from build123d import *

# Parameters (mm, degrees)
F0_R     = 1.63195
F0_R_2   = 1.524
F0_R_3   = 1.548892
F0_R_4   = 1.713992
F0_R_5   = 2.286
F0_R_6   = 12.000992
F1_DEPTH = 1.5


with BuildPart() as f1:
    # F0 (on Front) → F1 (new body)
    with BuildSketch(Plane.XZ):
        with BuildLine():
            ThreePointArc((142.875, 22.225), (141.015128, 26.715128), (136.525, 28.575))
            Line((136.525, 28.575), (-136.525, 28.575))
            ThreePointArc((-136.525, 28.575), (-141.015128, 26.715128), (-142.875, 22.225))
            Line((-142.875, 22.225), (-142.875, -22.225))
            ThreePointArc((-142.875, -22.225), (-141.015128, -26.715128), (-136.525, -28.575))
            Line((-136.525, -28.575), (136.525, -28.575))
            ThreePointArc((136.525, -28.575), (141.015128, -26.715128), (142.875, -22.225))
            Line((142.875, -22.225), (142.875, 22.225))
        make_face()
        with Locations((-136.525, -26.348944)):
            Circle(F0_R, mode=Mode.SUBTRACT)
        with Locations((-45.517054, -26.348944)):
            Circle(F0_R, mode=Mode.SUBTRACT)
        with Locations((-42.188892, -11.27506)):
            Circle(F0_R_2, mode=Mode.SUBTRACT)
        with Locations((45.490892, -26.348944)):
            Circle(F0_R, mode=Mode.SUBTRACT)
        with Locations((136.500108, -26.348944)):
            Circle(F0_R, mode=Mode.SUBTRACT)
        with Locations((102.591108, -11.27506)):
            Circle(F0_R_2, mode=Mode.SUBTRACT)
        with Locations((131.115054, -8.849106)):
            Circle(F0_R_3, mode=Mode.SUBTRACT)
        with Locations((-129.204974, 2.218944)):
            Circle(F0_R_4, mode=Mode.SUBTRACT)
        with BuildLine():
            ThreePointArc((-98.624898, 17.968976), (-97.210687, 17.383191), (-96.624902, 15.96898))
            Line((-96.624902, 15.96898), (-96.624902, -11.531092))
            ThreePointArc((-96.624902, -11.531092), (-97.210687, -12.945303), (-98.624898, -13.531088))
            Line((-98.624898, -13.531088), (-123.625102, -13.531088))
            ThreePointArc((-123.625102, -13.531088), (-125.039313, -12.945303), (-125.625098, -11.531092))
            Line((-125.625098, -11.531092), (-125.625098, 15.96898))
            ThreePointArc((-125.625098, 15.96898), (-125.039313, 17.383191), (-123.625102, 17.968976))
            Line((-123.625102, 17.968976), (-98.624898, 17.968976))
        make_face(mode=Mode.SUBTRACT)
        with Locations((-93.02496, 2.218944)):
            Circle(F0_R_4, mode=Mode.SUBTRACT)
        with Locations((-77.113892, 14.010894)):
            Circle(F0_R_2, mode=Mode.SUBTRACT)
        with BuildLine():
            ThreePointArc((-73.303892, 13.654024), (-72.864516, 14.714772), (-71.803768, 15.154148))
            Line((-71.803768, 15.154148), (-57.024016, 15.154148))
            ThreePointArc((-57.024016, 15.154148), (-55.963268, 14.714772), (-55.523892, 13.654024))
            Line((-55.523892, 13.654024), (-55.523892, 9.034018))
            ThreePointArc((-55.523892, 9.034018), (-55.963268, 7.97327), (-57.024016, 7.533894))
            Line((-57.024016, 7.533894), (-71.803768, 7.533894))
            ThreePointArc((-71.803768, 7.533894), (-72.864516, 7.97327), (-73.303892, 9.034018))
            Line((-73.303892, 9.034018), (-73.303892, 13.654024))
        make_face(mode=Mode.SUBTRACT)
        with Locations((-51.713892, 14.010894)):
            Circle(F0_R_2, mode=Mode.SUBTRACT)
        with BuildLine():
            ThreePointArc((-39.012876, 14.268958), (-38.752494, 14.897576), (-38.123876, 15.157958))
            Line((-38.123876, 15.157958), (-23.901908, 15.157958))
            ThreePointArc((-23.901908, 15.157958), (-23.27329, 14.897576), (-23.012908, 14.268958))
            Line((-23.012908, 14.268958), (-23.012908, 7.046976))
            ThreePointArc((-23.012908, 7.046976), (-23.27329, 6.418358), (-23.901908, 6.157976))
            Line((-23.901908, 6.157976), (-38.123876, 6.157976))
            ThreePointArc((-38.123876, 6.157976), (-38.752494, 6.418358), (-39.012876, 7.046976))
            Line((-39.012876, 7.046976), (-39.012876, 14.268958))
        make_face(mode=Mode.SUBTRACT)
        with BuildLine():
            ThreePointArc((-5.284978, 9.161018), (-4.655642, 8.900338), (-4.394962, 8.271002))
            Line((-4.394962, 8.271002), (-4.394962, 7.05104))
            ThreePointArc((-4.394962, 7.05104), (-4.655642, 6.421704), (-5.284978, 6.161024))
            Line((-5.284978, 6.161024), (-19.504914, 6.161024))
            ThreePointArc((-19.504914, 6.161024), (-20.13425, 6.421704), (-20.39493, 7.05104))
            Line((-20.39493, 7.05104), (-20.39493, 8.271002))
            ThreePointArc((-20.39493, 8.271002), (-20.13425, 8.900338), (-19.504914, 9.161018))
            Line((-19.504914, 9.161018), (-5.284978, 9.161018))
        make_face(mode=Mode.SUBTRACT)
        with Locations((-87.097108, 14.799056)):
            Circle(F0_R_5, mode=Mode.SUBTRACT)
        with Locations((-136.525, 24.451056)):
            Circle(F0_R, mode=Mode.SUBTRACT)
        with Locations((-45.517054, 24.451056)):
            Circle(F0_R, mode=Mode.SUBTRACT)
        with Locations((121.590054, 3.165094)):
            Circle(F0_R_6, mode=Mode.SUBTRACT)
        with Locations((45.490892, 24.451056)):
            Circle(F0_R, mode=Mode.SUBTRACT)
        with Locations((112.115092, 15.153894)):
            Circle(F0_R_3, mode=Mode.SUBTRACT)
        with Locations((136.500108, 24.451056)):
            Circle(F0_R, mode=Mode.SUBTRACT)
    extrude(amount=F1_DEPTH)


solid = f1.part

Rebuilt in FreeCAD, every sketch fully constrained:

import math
import FreeCAD as App
import Part
import Sketcher
Q = App.Units.Quantity

doc = App.newDocument("Part")
body = doc.addObject("PartDesign::Body", "Body")

# Sketch on XZ plane
sketch1 = body.newObject("Sketcher::SketchObject", "Sketch")
sketch1.AttachmentSupport = (doc.getObject("XZ_Plane"), [""])
sketch1.MapMode = "FlatFace"
sketch1.addGeometry([
    Part.ArcOfCircle(Part.Circle(App.Vector(136.5, 22.2, 0), App.Vector(0, 0, 1), 6.4), math.radians(0), math.radians(90)),  # 0
    Part.LineSegment(App.Vector(136.5, 28.6, 0), App.Vector(-136.5, 28.6, 0)),  # 1
    Part.ArcOfCircle(Part.Circle(App.Vector(-136.5, 22.2, 0), App.Vector(0, 0, 1), 6.4), math.radians(90), math.radians(180)),  # 2
    Part.LineSegment(App.Vector(-142.9, 22.2, 0), App.Vector(-142.9, -22.2, 0)),  # 3
    Part.ArcOfCircle(Part.Circle(App.Vector(-136.5, -22.2, 0), App.Vector(0, 0, 1), 6.4), math.radians(-180), math.radians(-90)),  # 4
    Part.LineSegment(App.Vector(-136.5, -28.6, 0), App.Vector(136.5, -28.6, 0)),  # 5
    Part.ArcOfCircle(Part.Circle(App.Vector(136.5, -22.2, 0), App.Vector(0, 0, 1), 6.4), math.radians(-90), math.radians(0)),  # 6
    Part.LineSegment(App.Vector(142.9, -22.2, 0), App.Vector(142.9, 22.2, 0)),  # 7
    Part.Circle(App.Vector(-136.5, -26.3, 0), App.Vector(0, 0, 1), 1.6),  # 8
    Part.Circle(App.Vector(-45.5, -26.3, 0), App.Vector(0, 0, 1), 1.6),  # 9
    Part.Circle(App.Vector(-42.2, -11.3, 0), App.Vector(0, 0, 1), 1.5),  # 10
    Part.Circle(App.Vector(45.5, -26.3, 0), App.Vector(0, 0, 1), 1.6),  # 11
    Part.Circle(App.Vector(136.5, -26.3, 0), App.Vector(0, 0, 1), 1.6),  # 12
    Part.Circle(App.Vector(102.6, -11.3, 0), App.Vector(0, 0, 1), 1.5),  # 13
    Part.Circle(App.Vector(131.1, -8.8, 0), App.Vector(0, 0, 1), 1.5),  # 14
    Part.Circle(App.Vector(-129.2, 2.2, 0), App.Vector(0, 0, 1), 1.7),  # 15
    Part.LineSegment(App.Vector(-123.6, 18, 0), App.Vector(-98.6, 18, 0)),  # 16
    Part.ArcOfCircle(Part.Circle(App.Vector(-98.6, 16, 0), App.Vector(0, 0, 1), 2), math.radians(0), math.radians(90)),  # 17
    Part.LineSegment(App.Vector(-96.6, 16, 0), App.Vector(-96.6, -11.5, 0)),  # 18
    Part.ArcOfCircle(Part.Circle(App.Vector(-98.6, -11.5, 0), App.Vector(0, 0, 1), 2), math.radians(-90), math.radians(0)),  # 19
    Part.LineSegment(App.Vector(-98.6, -13.5, 0), App.Vector(-123.6, -13.5, 0)),  # 20
    Part.ArcOfCircle(Part.Circle(App.Vector(-123.6, -11.5, 0), App.Vector(0, 0, 1), 2), math.radians(180), math.radians(270)),  # 21
    Part.LineSegment(App.Vector(-125.6, -11.5, 0), App.Vector(-125.6, 16, 0)),  # 22
    Part.ArcOfCircle(Part.Circle(App.Vector(-123.6, 16, 0), App.Vector(0, 0, 1), 2), math.radians(90), math.radians(180)),  # 23
    Part.Circle(App.Vector(-93, 2.2, 0), App.Vector(0, 0, 1), 1.7),  # 24
    Part.LineSegment(App.Vector(-73.3, 9, 0), App.Vector(-73.3, 13.7, 0)),  # 25
    Part.ArcOfCircle(Part.Circle(App.Vector(-71.8, 13.7, 0), App.Vector(0, 0, 1), 1.5), math.radians(90), math.radians(180)),  # 26
    Part.LineSegment(App.Vector(-71.8, 15.2, 0), App.Vector(-57, 15.2, 0)),  # 27
    Part.ArcOfCircle(Part.Circle(App.Vector(-57, 13.7, 0), App.Vector(0, 0, 1), 1.5), math.radians(0), math.radians(90)),  # 28
    Part.LineSegment(App.Vector(-55.5, 13.7, 0), App.Vector(-55.5, 9, 0)),  # 29
    Part.ArcOfCircle(Part.Circle(App.Vector(-57, 9, 0), App.Vector(0, 0, 1), 1.5), math.radians(-90), math.radians(0)),  # 30
    Part.LineSegment(App.Vector(-57, 7.5, 0), App.Vector(-71.8, 7.5, 0)),  # 31
    Part.ArcOfCircle(Part.Circle(App.Vector(-71.8, 9, 0), App.Vector(0, 0, 1), 1.5), math.radians(180), math.radians(270)),  # 32
    Part.LineSegment(App.Vector(-19.5, 9.2, 0), App.Vector(-5.3, 9.2, 0)),  # 33
    Part.ArcOfCircle(Part.Circle(App.Vector(-5.3, 8.3, 0), App.Vector(0, 0, 1), 0.9), math.radians(0), math.radians(90)),  # 34
    Part.LineSegment(App.Vector(-4.4, 8.3, 0), App.Vector(-4.4, 7.1, 0)),  # 35
    Part.ArcOfCircle(Part.Circle(App.Vector(-5.3, 7.1, 0), App.Vector(0, 0, 1), 0.9), math.radians(-90), math.radians(0)),  # 36
    Part.LineSegment(App.Vector(-5.3, 6.2, 0), App.Vector(-19.5, 6.2, 0)),  # 37
    Part.ArcOfCircle(Part.Circle(App.Vector(-19.5, 7.1, 0), App.Vector(0, 0, 1), 0.9), math.radians(-180), math.radians(-90)),  # 38
    Part.LineSegment(App.Vector(-20.4, 7.1, 0), App.Vector(-20.4, 8.3, 0)),  # 39
    Part.ArcOfCircle(Part.Circle(App.Vector(-19.5, 8.3, 0), App.Vector(0, 0, 1), 0.9), math.radians(90), math.radians(180)),  # 40
    Part.LineSegment(App.Vector(-39, 7, 0), App.Vector(-39, 14.3, 0)),  # 41
    Part.ArcOfCircle(Part.Circle(App.Vector(-38.1, 14.3, 0), App.Vector(0, 0, 1), 0.9), math.radians(90), math.radians(180)),  # 42
    Part.LineSegment(App.Vector(-38.1, 15.2, 0), App.Vector(-23.9, 15.2, 0)),  # 43
    Part.ArcOfCircle(Part.Circle(App.Vector(-23.9, 14.3, 0), App.Vector(0, 0, 1), 0.9), math.radians(0), math.radians(90)),  # 44
    Part.LineSegment(App.Vector(-23, 14.3, 0), App.Vector(-23, 7, 0)),  # 45
    Part.ArcOfCircle(Part.Circle(App.Vector(-23.9, 7, 0), App.Vector(0, 0, 1), 0.9), math.radians(-90), math.radians(0)),  # 46
    Part.LineSegment(App.Vector(-23.9, 6.2, 0), App.Vector(-38.1, 6.2, 0)),  # 47
    Part.ArcOfCircle(Part.Circle(App.Vector(-38.1, 7, 0), App.Vector(0, 0, 1), 0.9), math.radians(180), math.radians(270)),  # 48
    Part.Circle(App.Vector(-87.1, 14.8, 0), App.Vector(0, 0, 1), 2.3),  # 49
    Part.Circle(App.Vector(-77.1, 14, 0), App.Vector(0, 0, 1), 1.5),  # 50
    Part.Circle(App.Vector(-136.5, 24.5, 0), App.Vector(0, 0, 1), 1.6),  # 51
    Part.Circle(App.Vector(-51.7, 14, 0), App.Vector(0, 0, 1), 1.5),  # 52
    Part.Circle(App.Vector(-45.5, 24.5, 0), App.Vector(0, 0, 1), 1.6),  # 53
    Part.Circle(App.Vector(121.6, 3.2, 0), App.Vector(0, 0, 1), 12),  # 54
    Part.Circle(App.Vector(45.5, 24.5, 0), App.Vector(0, 0, 1), 1.6),  # 55
    Part.Circle(App.Vector(112.1, 15.2, 0), App.Vector(0, 0, 1), 1.5),  # 56
    Part.Circle(App.Vector(136.5, 24.5, 0), App.Vector(0, 0, 1), 1.6),  # 57
], False)
sketch1.addConstraint([
    Sketcher.Constraint("Tangent", 0, 2, 1, 1),
    Sketcher.Constraint("Tangent", 1, 2, 2, 1),
    Sketcher.Constraint("Tangent", 2, 2, 3, 1),
    Sketcher.Constraint("Tangent", 3, 2, 4, 1),
    Sketcher.Constraint("Tangent", 4, 2, 5, 1),
    Sketcher.Constraint("Tangent", 5, 2, 6, 1),
    Sketcher.Constraint("Tangent", 6, 2, 7, 1),
    Sketcher.Constraint("Tangent", 7, 2, 0, 1),
    Sketcher.Constraint("Tangent", 16, 2, 17, 2),
    Sketcher.Constraint("Tangent", 17, 1, 18, 1),
    Sketcher.Constraint("Tangent", 18, 2, 19, 2),
    Sketcher.Constraint("Tangent", 19, 1, 20, 1),
    Sketcher.Constraint("Tangent", 20, 2, 21, 2),
    Sketcher.Constraint("Tangent", 21, 1, 22, 1),
    Sketcher.Constraint("Tangent", 22, 2, 23, 2),
    Sketcher.Constraint("Tangent", 23, 1, 16, 1),
    Sketcher.Constraint("Tangent", 25, 2, 26, 2),
    Sketcher.Constraint("Tangent", 26, 1, 27, 1),
    Sketcher.Constraint("Tangent", 27, 2, 28, 2),
    Sketcher.Constraint("Tangent", 28, 1, 29, 1),
    Sketcher.Constraint("Tangent", 29, 2, 30, 2),
    Sketcher.Constraint("Tangent", 30, 1, 31, 1),
    Sketcher.Constraint("Tangent", 31, 2, 32, 2),
    Sketcher.Constraint("Tangent", 32, 1, 25, 1),
    Sketcher.Constraint("Tangent", 33, 2, 34, 2),
    Sketcher.Constraint("Tangent", 34, 1, 35, 1),
    Sketcher.Constraint("Tangent", 35, 2, 36, 2),
    Sketcher.Constraint("Tangent", 36, 1, 37, 1),
    Sketcher.Constraint("Tangent", 37, 2, 38, 2),
    Sketcher.Constraint("Tangent", 38, 1, 39, 1),
    Sketcher.Constraint("Tangent", 39, 2, 40, 2),
    Sketcher.Constraint("Tangent", 40, 1, 33, 1),
    Sketcher.Constraint("Tangent", 41, 2, 42, 2),
    Sketcher.Constraint("Tangent", 42, 1, 43, 1),
    Sketcher.Constraint("Tangent", 43, 2, 44, 2),
    Sketcher.Constraint("Tangent", 44, 1, 45, 1),
    Sketcher.Constraint("Tangent", 45, 2, 46, 2),
    Sketcher.Constraint("Tangent", 46, 1, 47, 1),
    Sketcher.Constraint("Tangent", 47, 2, 48, 2),
    Sketcher.Constraint("Tangent", 48, 1, 41, 1),
    Sketcher.Constraint("Horizontal", 1),
    Sketcher.Constraint("Vertical", 3),
    Sketcher.Constraint("Horizontal", 5),
    Sketcher.Constraint("Vertical", 7),
    Sketcher.Constraint("Horizontal", 16),
    Sketcher.Constraint("Vertical", 18),
    Sketcher.Constraint("Horizontal", 20),
    Sketcher.Constraint("Vertical", 22),
    Sketcher.Constraint("Vertical", 25),
    Sketcher.Constraint("Horizontal", 27),
    Sketcher.Constraint("Vertical", 29),
    Sketcher.Constraint("Horizontal", 31),
    Sketcher.Constraint("Horizontal", 33),
    Sketcher.Constraint("Vertical", 35),
    Sketcher.Constraint("Horizontal", 37),
    Sketcher.Constraint("Vertical", 39),
    Sketcher.Constraint("Vertical", 41),
    Sketcher.Constraint("Horizontal", 43),
    Sketcher.Constraint("Vertical", 45),
    Sketcher.Constraint("Horizontal", 47),
    Sketcher.Constraint("Equal", 0, 2),
    Sketcher.Constraint("Equal", 2, 4),
    Sketcher.Constraint("Equal", 4, 6),
    Sketcher.Constraint("Equal", 8, 9),
    Sketcher.Constraint("Equal", 9, 11),
    Sketcher.Constraint("Equal", 11, 12),
    Sketcher.Constraint("Equal", 10, 13),
    Sketcher.Constraint("Equal", 17, 19),
    Sketcher.Constraint("Equal", 19, 21),
    Sketcher.Constraint("Equal", 21, 23),
    Sketcher.Constraint("Equal", 15, 24),
    Sketcher.Constraint("Equal", 26, 28),
    Sketcher.Constraint("Equal", 28, 30),
    Sketcher.Constraint("Equal", 30, 32),
    Sketcher.Constraint("Equal", 34, 36),
    Sketcher.Constraint("Equal", 36, 38),
    Sketcher.Constraint("Equal", 38, 40),
    Sketcher.Constraint("Equal", 42, 44),
    Sketcher.Constraint("Equal", 44, 46),
    Sketcher.Constraint("Equal", 46, 48),
    Sketcher.Constraint("Equal", 13, 50),
    Sketcher.Constraint("Equal", 12, 51),
    Sketcher.Constraint("Equal", 50, 52),
    Sketcher.Constraint("Equal", 51, 53),
    Sketcher.Constraint("Equal", 53, 55),
    Sketcher.Constraint("Equal", 14, 56),
    Sketcher.Constraint("Equal", 55, 57),
    Sketcher.Constraint("Symmetric", 0, 3, 4, 3, -1, 1),
    Sketcher.Constraint("Horizontal", 8, 3, 9, 3),
    Sketcher.Constraint("Horizontal", 9, 3, 11, 3),
    Sketcher.Constraint("Horizontal", 11, 3, 12, 3),
    Sketcher.Constraint("Horizontal", 10, 3, 13, 3),
    Sketcher.Constraint("Horizontal", 15, 3, 24, 3),
    Sketcher.Constraint("Horizontal", 50, 3, 52, 3),
    Sketcher.Constraint("Horizontal", 51, 3, 53, 3),
    Sketcher.Constraint("Horizontal", 53, 3, 55, 3),
    Sketcher.Constraint("Horizontal", 55, 3, 57, 3),
    Sketcher.Constraint("Vertical", 4, 3, 8, 3),
    Sketcher.Constraint("Vertical", 8, 3, 51, 3),
    Sketcher.Constraint("Vertical", 9, 3, 53, 3),
    Sketcher.Constraint("Vertical", 11, 3, 55, 3),
    Sketcher.Constraint("Vertical", 12, 3, 57, 3),
    Sketcher.Constraint("Diameter", 10, Q("0.12 in")),
    Sketcher.Constraint("Diameter", 49, Q("0.18 in")),
    Sketcher.Constraint("Radius", 0, Q("0.25 in")),
    Sketcher.Constraint("Radius", 42, Q("0.035 in")),
    Sketcher.Constraint("Diameter", 8, Q("0.1285 in")),
    Sketcher.Constraint("DistanceX", 1, 2, 1, 1, Q("10.75 in")),
    Sketcher.Constraint("DistanceY", 3, 2, 3, 1, Q("1.75 in")),
    Sketcher.Constraint("Diameter", 14, Q("3.097784 mm")),
    Sketcher.Constraint("Diameter", 15, Q("3.427984 mm")),
    Sketcher.Constraint("Diameter", 54, Q("24.001984 mm")),
    Sketcher.Constraint("DistanceY", 10, 3, -1, 1, Q("0.4439 in")),
    Sketcher.Constraint("DistanceY", -1, 1, 17, 3, Q("0.6287 in")),
    Sketcher.Constraint("DistanceX", 24, 3, -1, 1, Q("3.6624 in")),
    Sketcher.Constraint("DistanceY", -1, 1, 36, 3, Q("0.2776 in")),
    Sketcher.Constraint("Radius", 17, Q("1.999995 mm")),
    Sketcher.Constraint("Radius", 26, Q("1.500123 mm")),
    Sketcher.Constraint("Radius", 34, Q("0.890017 mm")),
    Sketcher.Constraint("DistanceX", 43, 1, 43, 2, Q("14.221968 mm")),
    Sketcher.Constraint("DistanceY", 18, 2, 18, 1, Q("27.500072 mm")),
    Sketcher.Constraint("DistanceY", 35, 2, 35, 1, Q("1.219962 mm")),
    Sketcher.Constraint("DistanceY", 41, 1, 41, 2, Q("7.221982 mm")),
    Sketcher.Constraint("DistanceX", 16, 2, -1, 1, Q("98.624898 mm")),
    Sketcher.Constraint("DistanceX", 20, 2, -1, 1, Q("123.625102 mm")),
    Sketcher.Constraint("DistanceX", 27, 1, 27, 2, Q("14.779752 mm")),
    Sketcher.Constraint("DistanceX", 33, 1, 33, 2, Q("14.219936 mm")),
    Sketcher.Constraint("DistanceY", 25, 1, 25, 2, Q("4.620006 mm")),
    Sketcher.Constraint("DistanceX", -1, 1, 12, 3, Q("136.500108 mm")),
    Sketcher.Constraint("DistanceX", -1, 1, 13, 3, Q("102.591108 mm")),
    Sketcher.Constraint("DistanceX", 26, 3, -1, 1, Q("71.803769 mm")),
    Sketcher.Constraint("DistanceX", 34, 3, -1, 1, Q("5.284979 mm")),
    Sketcher.Constraint("DistanceY", -1, 1, 42, 3, Q("14.268958 mm")),
    Sketcher.Constraint("DistanceX", 49, 3, -1, 1, Q("87.097108 mm")),
    Sketcher.Constraint("DistanceX", 44, 1, -1, 1, Q("23.012908 mm")),
    Sketcher.Constraint("DistanceY", 8, 3, -1, 1, Q("26.348944 mm")),
    Sketcher.Constraint("DistanceX", 9, 3, -1, 1, Q("45.517054 mm")),
    Sketcher.Constraint("DistanceX", 10, 3, -1, 1, Q("42.188892 mm")),
    Sketcher.Constraint("DistanceX", -1, 1, 11, 3, Q("45.490892 mm")),
    Sketcher.Constraint("DistanceX", -1, 1, 14, 3, Q("131.115054 mm")),
    Sketcher.Constraint("DistanceY", 14, 3, -1, 1, Q("8.849106 mm")),
    Sketcher.Constraint("DistanceX", 15, 3, -1, 1, Q("129.204974 mm")),
    Sketcher.Constraint("DistanceY", -1, 1, 15, 3, Q("2.218944 mm")),
    Sketcher.Constraint("DistanceY", -1, 1, 26, 3, Q("13.654025 mm")),
    Sketcher.Constraint("DistanceY", -1, 1, 49, 3, Q("14.799056 mm")),
    Sketcher.Constraint("DistanceX", 50, 3, -1, 1, Q("77.113892 mm")),
    Sketcher.Constraint("DistanceY", -1, 1, 50, 3, Q("14.010894 mm")),
    Sketcher.Constraint("DistanceY", -1, 1, 51, 3, Q("24.451056 mm")),
    Sketcher.Constraint("DistanceX", 52, 3, -1, 1, Q("51.713892 mm")),
    Sketcher.Constraint("DistanceX", -1, 1, 54, 3, Q("121.590054 mm")),
    Sketcher.Constraint("DistanceY", -1, 1, 54, 3, Q("3.165094 mm")),
    Sketcher.Constraint("DistanceX", -1, 1, 56, 3, Q("112.115092 mm")),
    Sketcher.Constraint("DistanceY", -1, 1, 56, 3, Q("15.153894 mm")),
])
pad1 = body.newObject("PartDesign::Pad", "Pad")
pad1.Profile = sketch1
pad1.Length = 1.5

doc.recompute()
